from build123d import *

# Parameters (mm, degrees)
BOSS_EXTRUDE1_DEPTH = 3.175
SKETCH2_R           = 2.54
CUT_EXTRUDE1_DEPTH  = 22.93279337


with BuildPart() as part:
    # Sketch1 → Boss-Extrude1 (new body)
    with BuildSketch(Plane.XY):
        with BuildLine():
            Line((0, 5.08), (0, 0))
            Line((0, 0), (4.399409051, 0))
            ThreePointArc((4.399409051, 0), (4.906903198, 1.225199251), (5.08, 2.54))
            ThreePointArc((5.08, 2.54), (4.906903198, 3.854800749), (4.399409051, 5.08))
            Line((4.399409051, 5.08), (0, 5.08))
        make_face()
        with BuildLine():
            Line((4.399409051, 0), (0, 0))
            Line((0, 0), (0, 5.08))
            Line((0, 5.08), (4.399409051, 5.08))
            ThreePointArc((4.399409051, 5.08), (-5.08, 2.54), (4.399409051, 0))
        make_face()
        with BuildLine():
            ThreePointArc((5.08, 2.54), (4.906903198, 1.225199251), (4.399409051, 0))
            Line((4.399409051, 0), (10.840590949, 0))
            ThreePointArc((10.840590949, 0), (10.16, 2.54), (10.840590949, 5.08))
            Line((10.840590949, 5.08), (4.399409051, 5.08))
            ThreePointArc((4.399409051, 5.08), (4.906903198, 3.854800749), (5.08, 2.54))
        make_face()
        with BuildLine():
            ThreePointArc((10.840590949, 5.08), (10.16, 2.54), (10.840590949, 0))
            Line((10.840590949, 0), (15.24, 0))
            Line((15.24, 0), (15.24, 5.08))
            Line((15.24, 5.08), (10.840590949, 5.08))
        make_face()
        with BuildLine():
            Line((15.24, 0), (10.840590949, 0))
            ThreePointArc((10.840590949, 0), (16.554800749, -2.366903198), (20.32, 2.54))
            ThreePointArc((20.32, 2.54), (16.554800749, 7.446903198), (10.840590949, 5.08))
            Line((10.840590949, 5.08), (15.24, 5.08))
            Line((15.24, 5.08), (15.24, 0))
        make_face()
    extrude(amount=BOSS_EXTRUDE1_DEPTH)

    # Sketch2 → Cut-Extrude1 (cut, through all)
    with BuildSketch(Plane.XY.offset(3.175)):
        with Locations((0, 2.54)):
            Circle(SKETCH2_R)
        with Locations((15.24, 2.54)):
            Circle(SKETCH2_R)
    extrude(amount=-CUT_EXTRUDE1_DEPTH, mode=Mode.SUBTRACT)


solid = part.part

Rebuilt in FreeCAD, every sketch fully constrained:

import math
import FreeCAD as App
import Part
import Sketcher

V = App.Vector
Q = App.Units.Quantity

doc = App.newDocument("Part")
body = doc.addObject("PartDesign::Body", "Body")

# Sketch on XY plane
sketch1 = body.newObject("Sketcher::SketchObject", "Sketch")
sketch1.AttachmentSupport = (doc.getObject("XY_Plane"), [""])
sketch1.MapMode = "FlatFace"
sketch1.addGeometry(Part.LineSegment(V(4, 0, 0), V(11, 0, 0)), False)
sketch1.addGeometry(Part.ArcOfCircle(Part.Circle(V(15, 3, 0), V(0, 0, 1), 5), math.radians(-150), math.radians(0)), False)
sketch1.addGeometry(Part.ArcOfCircle(Part.Circle(V(15, 3, 0), V(0, 0, 1), 5), math.radians(0), math.radians(150)), False)
sketch1.addGeometry(Part.LineSegment(V(11, 5, 0), V(4, 5, 0)), False)
sketch1.addGeometry(Part.ArcOfCircle(Part.Circle(V(0, 3, 0), V(0, 0, 1), 5), math.radians(30), math.radians(330)), False)
sketch1.addConstraint(Sketcher.Constraint("Coincident", 0, 2, 1, 1))
sketch1.addConstraint(Sketcher.Constraint("Tangent", 1, 2, 2, 1))
sketch1.addConstraint(Sketcher.Constraint("Coincident", 2, 2, 3, 1))
sketch1.addConstraint(Sketcher.Constraint("Coincident", 3, 2, 4, 1))
sketch1.addConstraint(Sketcher.Constraint("Coincident", 4, 2, 0, 1))
sketch1.addConstraint(Sketcher.Constraint("Horizontal", 0))
sketch1.addConstraint(Sketcher.Constraint("Horizontal", 3))
sketch1.addConstraint(Sketcher.Constraint("Equal", 1, 2))
sketch1.addConstraint(Sketcher.Constraint("Equal", 2, 4))
sketch1.addConstraint(Sketcher.Constraint("PointOnObject", 4, 3, -2))
sketch1.addConstraint(Sketcher.Constraint("PointOnObject", 0, 2, -1))
sketch1.addConstraint(Sketcher.Constraint("Horizontal", 2, 3, 4, 3))
sketch1.addConstraint(Sketcher.Constraint("Horizontal", 4, 3, 1, 2))
sketch1.addConstraint(Sketcher.Constraint("Vertical", 0, 2, 2, 2))
sketch1.addConstraint(Sketcher.Constraint("Radius", 1, Q("0.2 in")))
sketch1.addConstraint(Sketcher.Constraint("DistanceX", -1, 1, 1, 3, Q("0.6 in")))
sketch1.addConstraint(Sketcher.Constraint("DistanceY", -1, 1, 1, 3, Q("0.1 in")))
pad1 = body.newObject("PartDesign::Pad", "Pad")
pad1.Profile = sketch1
pad1.Length = Q("0.125 in")

# Sketch on XY plane
sketch2 = body.newObject("Sketcher::SketchObject", "Sketch001")
sketch2.AttachmentSupport = (doc.getObject("XY_Plane"), [""])
sketch2.MapMode = "FlatFace"
sketch2.AttachmentOffset = App.Placement(V(0, 0, 0.125 * 25.4), App.Rotation())
sketch2.addGeometry(Part.Circle(V(0, 2.5, 0), V(0, 0, 1), 2.5), False)
sketch2.addGeometry(Part.Circle(V(15.2, 2.5, 0), V(0, 0, 1), 2.5), False)
sketch2.addConstraint(Sketcher.Constraint("Equal", 0, 1))
sketch2.addConstraint(Sketcher.Constraint("PointOnObject", 0, 3, -2))
sketch2.addConstraint(Sketcher.Constraint("Horizontal", 0, 3, 1, 3))
sketch2.addConstraint(Sketcher.Constraint("Diameter", 0, Q("0.2 in")))
sketch2.addConstraint(Sketcher.Constraint("DistanceY", -1, 1, 0, 3, Q("0.1 in")))
sketch2.addConstraint(Sketcher.Constraint("DistanceX", -1, 1, 1, 3, Q("0.6 in")))
pocket1 = body.newObject("PartDesign::Pocket", "Pocket")
pocket1.Profile = sketch2
pocket1.Type = "ThroughAll"

doc.recompute()
